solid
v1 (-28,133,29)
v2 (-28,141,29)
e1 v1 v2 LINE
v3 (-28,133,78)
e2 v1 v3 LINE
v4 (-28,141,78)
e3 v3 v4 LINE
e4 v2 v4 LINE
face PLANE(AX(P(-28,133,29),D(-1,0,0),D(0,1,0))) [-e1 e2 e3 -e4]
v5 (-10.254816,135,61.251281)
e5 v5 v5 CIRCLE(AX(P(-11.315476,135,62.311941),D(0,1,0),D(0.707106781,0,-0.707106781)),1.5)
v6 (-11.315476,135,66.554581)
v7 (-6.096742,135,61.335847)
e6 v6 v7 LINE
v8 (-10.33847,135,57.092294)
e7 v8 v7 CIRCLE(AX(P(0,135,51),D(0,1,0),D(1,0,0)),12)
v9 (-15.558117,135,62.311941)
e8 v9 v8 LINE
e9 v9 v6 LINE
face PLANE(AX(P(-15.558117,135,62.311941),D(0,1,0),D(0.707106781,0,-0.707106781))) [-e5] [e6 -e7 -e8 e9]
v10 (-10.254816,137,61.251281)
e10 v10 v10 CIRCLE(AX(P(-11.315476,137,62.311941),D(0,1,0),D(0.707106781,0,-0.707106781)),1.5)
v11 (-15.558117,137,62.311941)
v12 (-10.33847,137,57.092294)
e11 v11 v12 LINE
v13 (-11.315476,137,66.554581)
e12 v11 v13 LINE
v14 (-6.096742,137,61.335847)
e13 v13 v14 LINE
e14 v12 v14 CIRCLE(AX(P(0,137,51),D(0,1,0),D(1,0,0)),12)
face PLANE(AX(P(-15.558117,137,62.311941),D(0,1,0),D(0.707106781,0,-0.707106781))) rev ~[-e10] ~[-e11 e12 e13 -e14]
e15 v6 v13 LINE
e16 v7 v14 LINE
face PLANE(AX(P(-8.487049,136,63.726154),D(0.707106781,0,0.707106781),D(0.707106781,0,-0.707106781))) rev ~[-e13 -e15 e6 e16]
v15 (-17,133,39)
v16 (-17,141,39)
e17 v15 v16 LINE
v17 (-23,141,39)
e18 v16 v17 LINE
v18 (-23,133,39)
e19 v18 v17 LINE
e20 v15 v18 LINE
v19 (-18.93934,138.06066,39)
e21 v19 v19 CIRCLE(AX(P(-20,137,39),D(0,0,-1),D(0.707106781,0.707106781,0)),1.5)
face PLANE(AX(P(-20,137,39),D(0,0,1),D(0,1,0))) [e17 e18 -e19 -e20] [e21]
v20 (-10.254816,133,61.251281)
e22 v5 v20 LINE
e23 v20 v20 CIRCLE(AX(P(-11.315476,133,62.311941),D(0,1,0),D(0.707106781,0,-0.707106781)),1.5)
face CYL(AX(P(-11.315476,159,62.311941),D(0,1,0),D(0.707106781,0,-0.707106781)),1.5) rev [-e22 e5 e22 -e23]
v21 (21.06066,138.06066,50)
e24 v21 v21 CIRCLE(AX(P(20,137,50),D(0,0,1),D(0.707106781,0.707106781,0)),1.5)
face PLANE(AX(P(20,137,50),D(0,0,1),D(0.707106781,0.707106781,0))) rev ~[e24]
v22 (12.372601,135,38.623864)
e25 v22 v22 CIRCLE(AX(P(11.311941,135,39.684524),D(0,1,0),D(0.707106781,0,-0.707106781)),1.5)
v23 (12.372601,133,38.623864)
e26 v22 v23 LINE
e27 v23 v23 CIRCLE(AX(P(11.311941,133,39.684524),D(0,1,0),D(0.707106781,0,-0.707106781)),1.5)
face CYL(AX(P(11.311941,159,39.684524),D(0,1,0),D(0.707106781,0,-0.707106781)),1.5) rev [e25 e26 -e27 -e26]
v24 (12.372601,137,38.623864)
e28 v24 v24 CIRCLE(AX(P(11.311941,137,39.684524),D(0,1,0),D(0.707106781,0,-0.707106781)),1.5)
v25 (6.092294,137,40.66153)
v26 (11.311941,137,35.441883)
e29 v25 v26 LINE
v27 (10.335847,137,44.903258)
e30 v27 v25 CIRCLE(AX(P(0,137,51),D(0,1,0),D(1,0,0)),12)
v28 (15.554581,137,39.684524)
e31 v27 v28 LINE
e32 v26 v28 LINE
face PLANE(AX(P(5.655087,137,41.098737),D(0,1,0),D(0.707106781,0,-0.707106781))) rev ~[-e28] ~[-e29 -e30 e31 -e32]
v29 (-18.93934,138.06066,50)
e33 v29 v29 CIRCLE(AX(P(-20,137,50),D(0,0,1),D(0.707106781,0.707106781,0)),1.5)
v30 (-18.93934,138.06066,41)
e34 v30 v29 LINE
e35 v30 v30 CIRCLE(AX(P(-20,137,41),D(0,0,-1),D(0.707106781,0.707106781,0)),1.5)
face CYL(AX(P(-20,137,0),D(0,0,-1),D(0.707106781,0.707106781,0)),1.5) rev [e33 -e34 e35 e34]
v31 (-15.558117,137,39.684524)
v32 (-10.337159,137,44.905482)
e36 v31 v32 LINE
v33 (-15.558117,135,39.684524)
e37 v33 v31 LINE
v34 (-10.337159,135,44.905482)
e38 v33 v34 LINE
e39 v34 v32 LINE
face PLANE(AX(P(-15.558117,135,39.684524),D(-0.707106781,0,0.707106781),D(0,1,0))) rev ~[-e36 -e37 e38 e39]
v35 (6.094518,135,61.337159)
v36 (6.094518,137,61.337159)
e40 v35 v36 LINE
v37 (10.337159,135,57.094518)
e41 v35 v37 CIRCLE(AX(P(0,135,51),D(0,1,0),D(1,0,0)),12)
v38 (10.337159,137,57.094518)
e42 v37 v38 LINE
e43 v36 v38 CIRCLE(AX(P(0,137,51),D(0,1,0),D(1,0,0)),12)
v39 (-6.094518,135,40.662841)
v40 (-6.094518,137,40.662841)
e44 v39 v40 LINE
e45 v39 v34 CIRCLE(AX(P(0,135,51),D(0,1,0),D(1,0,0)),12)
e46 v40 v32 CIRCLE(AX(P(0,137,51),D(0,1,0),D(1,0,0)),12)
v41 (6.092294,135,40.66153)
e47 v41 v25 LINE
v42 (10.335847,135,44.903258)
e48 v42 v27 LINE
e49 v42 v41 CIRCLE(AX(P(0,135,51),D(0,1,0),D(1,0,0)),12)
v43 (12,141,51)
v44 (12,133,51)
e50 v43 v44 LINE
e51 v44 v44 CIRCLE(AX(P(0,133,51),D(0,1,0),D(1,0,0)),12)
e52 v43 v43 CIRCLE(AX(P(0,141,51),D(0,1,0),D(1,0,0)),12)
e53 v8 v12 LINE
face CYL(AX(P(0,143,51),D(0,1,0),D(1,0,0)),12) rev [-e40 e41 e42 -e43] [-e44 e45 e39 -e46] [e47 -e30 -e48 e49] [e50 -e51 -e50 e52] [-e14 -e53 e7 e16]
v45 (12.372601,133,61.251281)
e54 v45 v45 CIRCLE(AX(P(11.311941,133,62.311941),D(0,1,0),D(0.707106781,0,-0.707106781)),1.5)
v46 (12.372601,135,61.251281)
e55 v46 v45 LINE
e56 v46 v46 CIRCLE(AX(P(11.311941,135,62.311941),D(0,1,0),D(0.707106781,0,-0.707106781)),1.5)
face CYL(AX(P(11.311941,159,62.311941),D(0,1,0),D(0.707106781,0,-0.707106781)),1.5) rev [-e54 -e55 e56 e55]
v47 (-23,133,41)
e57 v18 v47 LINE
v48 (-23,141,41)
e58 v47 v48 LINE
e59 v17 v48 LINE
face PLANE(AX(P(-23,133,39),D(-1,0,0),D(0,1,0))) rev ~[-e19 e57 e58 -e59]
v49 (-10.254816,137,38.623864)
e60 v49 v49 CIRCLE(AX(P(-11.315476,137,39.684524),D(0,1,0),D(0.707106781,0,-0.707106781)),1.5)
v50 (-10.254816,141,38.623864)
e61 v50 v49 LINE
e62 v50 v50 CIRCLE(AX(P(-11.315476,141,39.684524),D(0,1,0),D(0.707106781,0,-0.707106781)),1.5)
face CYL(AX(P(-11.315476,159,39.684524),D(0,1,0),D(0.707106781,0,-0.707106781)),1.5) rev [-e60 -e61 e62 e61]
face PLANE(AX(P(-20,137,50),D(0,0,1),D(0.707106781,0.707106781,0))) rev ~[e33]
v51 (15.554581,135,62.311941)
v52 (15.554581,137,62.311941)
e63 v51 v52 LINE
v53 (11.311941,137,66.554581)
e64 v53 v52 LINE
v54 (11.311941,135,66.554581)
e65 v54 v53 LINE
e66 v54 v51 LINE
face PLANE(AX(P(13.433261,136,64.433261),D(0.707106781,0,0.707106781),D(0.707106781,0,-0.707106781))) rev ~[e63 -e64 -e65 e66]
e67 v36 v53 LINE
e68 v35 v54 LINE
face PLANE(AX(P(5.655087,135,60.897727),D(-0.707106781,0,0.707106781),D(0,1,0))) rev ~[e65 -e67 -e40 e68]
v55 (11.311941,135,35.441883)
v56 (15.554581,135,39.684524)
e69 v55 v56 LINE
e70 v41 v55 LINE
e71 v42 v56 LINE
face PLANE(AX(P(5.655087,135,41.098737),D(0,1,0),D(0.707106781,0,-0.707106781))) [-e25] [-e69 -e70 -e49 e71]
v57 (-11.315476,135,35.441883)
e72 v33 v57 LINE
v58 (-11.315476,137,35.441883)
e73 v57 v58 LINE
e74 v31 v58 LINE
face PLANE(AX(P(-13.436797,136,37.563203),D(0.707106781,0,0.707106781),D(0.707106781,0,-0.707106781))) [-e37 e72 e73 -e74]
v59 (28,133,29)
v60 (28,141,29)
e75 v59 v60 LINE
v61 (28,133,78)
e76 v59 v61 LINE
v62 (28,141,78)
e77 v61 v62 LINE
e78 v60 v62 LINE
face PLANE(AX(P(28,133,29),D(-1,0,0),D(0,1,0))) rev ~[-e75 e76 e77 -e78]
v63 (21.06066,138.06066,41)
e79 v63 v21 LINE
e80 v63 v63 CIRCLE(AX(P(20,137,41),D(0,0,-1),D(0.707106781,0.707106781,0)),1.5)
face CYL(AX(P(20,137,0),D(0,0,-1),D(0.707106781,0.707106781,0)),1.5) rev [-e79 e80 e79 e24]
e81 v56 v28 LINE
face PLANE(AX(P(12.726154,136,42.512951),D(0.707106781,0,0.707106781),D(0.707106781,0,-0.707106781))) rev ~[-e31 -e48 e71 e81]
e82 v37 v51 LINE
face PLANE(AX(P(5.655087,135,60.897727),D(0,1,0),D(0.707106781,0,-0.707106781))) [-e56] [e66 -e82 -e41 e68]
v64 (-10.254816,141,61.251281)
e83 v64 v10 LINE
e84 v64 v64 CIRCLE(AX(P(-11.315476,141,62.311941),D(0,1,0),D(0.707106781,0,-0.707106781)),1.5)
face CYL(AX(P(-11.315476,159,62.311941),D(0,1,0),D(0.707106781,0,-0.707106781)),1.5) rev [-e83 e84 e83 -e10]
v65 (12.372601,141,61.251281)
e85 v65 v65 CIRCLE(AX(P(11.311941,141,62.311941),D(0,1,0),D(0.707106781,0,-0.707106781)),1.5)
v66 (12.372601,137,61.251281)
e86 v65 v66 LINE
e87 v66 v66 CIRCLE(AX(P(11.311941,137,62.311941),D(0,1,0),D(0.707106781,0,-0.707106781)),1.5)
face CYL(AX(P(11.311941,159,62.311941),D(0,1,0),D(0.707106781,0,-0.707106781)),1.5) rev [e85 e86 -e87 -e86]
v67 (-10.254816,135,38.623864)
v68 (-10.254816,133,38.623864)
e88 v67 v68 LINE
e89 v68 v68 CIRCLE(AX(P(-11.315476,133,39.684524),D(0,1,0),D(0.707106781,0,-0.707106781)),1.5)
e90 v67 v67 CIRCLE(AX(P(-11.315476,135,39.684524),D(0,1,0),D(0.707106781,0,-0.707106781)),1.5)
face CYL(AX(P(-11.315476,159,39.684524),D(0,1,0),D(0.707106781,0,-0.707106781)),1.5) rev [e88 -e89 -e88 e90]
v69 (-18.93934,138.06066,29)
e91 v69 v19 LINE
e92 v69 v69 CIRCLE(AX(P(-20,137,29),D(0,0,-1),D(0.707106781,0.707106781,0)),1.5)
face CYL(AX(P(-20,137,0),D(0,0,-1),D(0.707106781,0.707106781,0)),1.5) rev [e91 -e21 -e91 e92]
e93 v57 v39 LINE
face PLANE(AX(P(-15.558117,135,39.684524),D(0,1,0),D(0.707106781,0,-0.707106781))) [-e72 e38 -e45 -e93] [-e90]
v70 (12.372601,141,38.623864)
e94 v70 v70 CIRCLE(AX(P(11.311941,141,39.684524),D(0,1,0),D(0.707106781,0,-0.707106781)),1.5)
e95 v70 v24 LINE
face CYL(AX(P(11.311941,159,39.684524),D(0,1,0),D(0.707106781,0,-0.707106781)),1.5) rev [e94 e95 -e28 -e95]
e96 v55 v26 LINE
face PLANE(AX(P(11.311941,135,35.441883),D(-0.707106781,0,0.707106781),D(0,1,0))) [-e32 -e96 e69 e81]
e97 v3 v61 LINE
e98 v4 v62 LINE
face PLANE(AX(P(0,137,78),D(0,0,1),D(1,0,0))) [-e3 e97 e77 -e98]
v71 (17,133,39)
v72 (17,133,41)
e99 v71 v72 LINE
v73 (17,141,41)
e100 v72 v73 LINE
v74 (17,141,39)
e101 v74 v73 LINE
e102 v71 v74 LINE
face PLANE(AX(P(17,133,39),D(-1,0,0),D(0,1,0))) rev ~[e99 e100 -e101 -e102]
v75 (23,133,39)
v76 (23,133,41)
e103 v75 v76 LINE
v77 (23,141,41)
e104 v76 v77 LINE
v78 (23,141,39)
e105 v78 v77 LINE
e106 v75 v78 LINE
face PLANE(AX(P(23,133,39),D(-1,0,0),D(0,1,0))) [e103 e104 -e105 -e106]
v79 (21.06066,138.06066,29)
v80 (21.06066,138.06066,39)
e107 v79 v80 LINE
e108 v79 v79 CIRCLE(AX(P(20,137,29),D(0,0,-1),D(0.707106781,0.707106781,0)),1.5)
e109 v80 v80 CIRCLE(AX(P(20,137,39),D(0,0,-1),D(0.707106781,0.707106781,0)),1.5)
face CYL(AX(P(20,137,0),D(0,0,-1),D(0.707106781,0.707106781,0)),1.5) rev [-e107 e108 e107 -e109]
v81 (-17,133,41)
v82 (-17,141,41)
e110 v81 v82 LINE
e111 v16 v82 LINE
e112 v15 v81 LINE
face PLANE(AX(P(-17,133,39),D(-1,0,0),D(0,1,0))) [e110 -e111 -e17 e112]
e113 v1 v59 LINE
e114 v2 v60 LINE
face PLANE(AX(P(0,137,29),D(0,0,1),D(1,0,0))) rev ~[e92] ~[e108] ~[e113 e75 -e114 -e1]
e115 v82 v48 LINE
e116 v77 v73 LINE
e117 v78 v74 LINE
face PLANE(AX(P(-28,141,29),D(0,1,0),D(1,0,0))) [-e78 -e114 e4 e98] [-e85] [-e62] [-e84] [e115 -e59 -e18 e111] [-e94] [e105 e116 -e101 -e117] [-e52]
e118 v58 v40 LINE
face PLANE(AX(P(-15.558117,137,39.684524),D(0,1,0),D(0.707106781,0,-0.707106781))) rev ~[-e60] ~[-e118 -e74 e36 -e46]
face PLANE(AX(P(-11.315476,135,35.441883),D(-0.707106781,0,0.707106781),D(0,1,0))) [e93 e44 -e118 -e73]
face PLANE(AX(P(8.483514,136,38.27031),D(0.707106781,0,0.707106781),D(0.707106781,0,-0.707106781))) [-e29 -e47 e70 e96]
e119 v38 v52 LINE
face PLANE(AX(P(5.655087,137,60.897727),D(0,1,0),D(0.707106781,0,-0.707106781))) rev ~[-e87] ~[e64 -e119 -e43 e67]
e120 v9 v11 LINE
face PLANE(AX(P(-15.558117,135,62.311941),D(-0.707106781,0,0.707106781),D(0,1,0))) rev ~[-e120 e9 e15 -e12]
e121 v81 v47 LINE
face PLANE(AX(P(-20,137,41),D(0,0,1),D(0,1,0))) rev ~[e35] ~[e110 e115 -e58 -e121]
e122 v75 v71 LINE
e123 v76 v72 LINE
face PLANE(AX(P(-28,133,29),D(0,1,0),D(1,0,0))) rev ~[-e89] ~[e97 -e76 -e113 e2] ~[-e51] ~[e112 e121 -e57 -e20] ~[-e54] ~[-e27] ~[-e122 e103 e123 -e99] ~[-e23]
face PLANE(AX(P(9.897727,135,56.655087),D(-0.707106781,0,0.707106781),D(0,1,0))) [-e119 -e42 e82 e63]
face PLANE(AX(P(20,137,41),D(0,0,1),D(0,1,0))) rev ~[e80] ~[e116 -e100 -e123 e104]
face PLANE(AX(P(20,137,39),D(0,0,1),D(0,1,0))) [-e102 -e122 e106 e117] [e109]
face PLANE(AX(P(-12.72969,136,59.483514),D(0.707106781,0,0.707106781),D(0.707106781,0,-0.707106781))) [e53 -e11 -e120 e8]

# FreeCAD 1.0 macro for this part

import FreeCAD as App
import Part
import Sketcher

doc = App.newDocument("Part")
body = doc.addObject("PartDesign::Body", "Body")

# Sketch on XY plane
sketch1 = doc.addObject("Sketcher::SketchObject", "Sketch")
body.addObject(sketch1)
sketch1.AttachmentSupport = (doc.XY_Plane, [""])
sketch1.MapMode = "FlatFace"
sketch1.AttachmentOffset = App.Placement(App.Vector(0, 0, 39), App.Rotation())
sketch1.addGeometry(Part.LineSegment(App.Vector(-23, 114, 0), App.Vector(-17, 114, 0)), False)
sketch1.addGeometry(Part.LineSegment(App.Vector(-17, 114, 0), App.Vector(-17, 122, 0)), False)
sketch1.addGeometry(Part.LineSegment(App.Vector(-17, 122, 0), App.Vector(-23, 122, 0)), False)
sketch1.addGeometry(Part.LineSegment(App.Vector(-23, 122, 0), App.Vector(-23, 114, 0)), False)
sketch1.addConstraint(Sketcher.Constraint("Coincident", 0, 2, 1, 1))
sketch1.addConstraint(Sketcher.Constraint("Coincident", 1, 2, 2, 1))
sketch1.addConstraint(Sketcher.Constraint("Coincident", 2, 2, 3, 1))
sketch1.addConstraint(Sketcher.Constraint("Coincident", 3, 2, 0, 1))
sketch1.addConstraint(Sketcher.Constraint("Horizontal", 0))
sketch1.addConstraint(Sketcher.Constraint("Vertical", 1))
sketch1.addConstraint(Sketcher.Constraint("Horizontal", 2))
sketch1.addConstraint(Sketcher.Constraint("Vertical", 3))
sketch1.addConstraint(Sketcher.Constraint("DistanceX", 0, 1, 0, 2, 6.0))
sketch1.addConstraint(Sketcher.Constraint("DistanceY", 1, 1, 1, 2, 8.0))
sketch1.addConstraint(Sketcher.Constraint("DistanceX", 0, 2, -1, 1, 17.0))
sketch1.addConstraint(Sketcher.Constraint("DistanceY", -1, 1, 0, 2, 114.0))
pad1 = doc.addObject("PartDesign::Pad", "Pad")
body.addObject(pad1)
pad1.Profile = sketch1
pad1.Length = 2
body2 = doc.addObject("PartDesign::Body", "Body001")
body2.AllowCompound = True

# Sketch on XY plane
sketch2 = doc.addObject("Sketcher::SketchObject", "Sketch001")
body2.addObject(sketch2)
sketch2.AttachmentSupport = (doc.getObject("XY_Plane001"), [""])
sketch2.MapMode = "FlatFace"
sketch2.AttachmentOffset = App.Placement(App.Vector(0, 0, 39), App.Rotation())
sketch2.addGeometry(Part.LineSegment(App.Vector(17, 114, 0), App.Vector(23, 114, 0)), False)
sketch2.addGeometry(Part.LineSegment(App.Vector(23, 114, 0), App.Vector(23, 122, 0)), False)
sketch2.addGeometry(Part.LineSegment(App.Vector(23, 122, 0), App.Vector(17, 122, 0)), False)
sketch2.addGeometry(Part.LineSegment(App.Vector(17, 122, 0), App.Vector(17, 114, 0)), False)
sketch2.addConstraint(Sketcher.Constraint("Coincident", 0, 2, 1, 1))
sketch2.addConstraint(Sketcher.Constraint("Coincident", 1, 2, 2, 1))
sketch2.addConstraint(Sketcher.Constraint("Coincident", 2, 2, 3, 1))
sketch2.addConstraint(Sketcher.Constraint("Coincident", 3, 2, 0, 1))
sketch2.addConstraint(Sketcher.Constraint("Horizontal", 0))
sketch2.addConstraint(Sketcher.Constraint("Vertical", 1))
sketch2.addConstraint(Sketcher.Constraint("Horizontal", 2))
sketch2.addConstraint(Sketcher.Constraint("Vertical", 3))
sketch2.addConstraint(Sketcher.Constraint("DistanceX", 0, 1, 0, 2, 6.0))
sketch2.addConstraint(Sketcher.Constraint("DistanceY", 1, 1, 1, 2, 8.0))
sketch2.addConstraint(Sketcher.Constraint("DistanceX", -1, 1, 0, 2, 23.0))
sketch2.addConstraint(Sketcher.Constraint("DistanceY", -1, 1, 0, 2, 114.0))
pad2 = doc.addObject("PartDesign::Pad", "Pad001")
body2.addObject(pad2)
pad2.Profile = sketch2
pad2.Length = 2
doc.recompute()

boolean = doc.addObject("PartDesign::Boolean", "Boolean")
body2.addObject(boolean)
boolean.Type = "Fuse"
boolean.addObjects([body])
body3 = doc.addObject("PartDesign::Body", "Body002")
body3.AllowCompound = True
doc.recompute()

body2.Placement = App.Placement(App.Vector(0, 18, 0), App.Rotation(App.Vector(0, 0, 1), 0))
boolean2 = doc.addObject("PartDesign::Boolean", "Boolean001")
body3.addObject(boolean2)
boolean2.Type = "Fuse"
boolean2.addObjects([body2])
body4 = doc.addObject("PartDesign::Body", "Body003")

# Sketch on XY plane
sketch3 = doc.addObject("Sketcher::SketchObject", "Sketch002")
body4.addObject(sketch3)
sketch3.AttachmentSupport = (doc.getObject("XY_Plane003"), [""])
sketch3.MapMode = "FlatFace"
sketch3.addGeometry(Part.Circle(App.Vector(0, 0, 0), App.Vector(0, 0, 1), 1.5), False)
sketch3.addConstraint(Sketcher.Constraint("Coincident", 0, 3, -1, 1))
sketch3.addConstraint(Sketcher.Constraint("Diameter", 0, 3.0))
pad3 = doc.addObject("PartDesign::Pad", "Pad002")
body4.addObject(pad3)
pad3.Profile = sketch3
pad3.Length = 50
body5 = doc.addObject("PartDesign::Body", "Body004")
doc.recompute()

body4.Placement = App.Placement(App.Vector(20, 118, 0), App.Rotation(App.Vector(0, 0, 1), 45))
boolean3 = doc.addObject("PartDesign::Boolean", "Boolean002")
body5.addObject(boolean3)
boolean3.Type = "Fuse"
boolean3.addObjects([body4])
body6 = doc.addObject("PartDesign::Body", "Body005")

# Sketch on XY plane
sketch4 = doc.addObject("Sketcher::SketchObject", "Sketch003")
body6.addObject(sketch4)
sketch4.AttachmentSupport = (doc.getObject("XY_Plane005"), [""])
sketch4.MapMode = "FlatFace"
sketch4.addGeometry(Part.Circle(App.Vector(0, 0, 0), App.Vector(0, 0, 1), 1.5), False)
sketch4.addConstraint(Sketcher.Constraint("Coincident", 0, 3, -1, 1))
sketch4.addConstraint(Sketcher.Constraint("Diameter", 0, 3.0))
pad4 = doc.addObject("PartDesign::Pad", "Pad003")
body6.addObject(pad4)
pad4.Profile = sketch4
pad4.Length = 50
body7 = doc.addObject("PartDesign::Body", "Body006")
body7.AllowCompound = True
doc.recompute()

body6.Placement = App.Placement(App.Vector(-20, 118, 0), App.Rotation(App.Vector(0, 0, 1), 45))
boolean4 = doc.addObject("PartDesign::Boolean", "Boolean003")
body7.addObject(boolean4)
boolean4.Type = "Fuse"
boolean4.addObjects([body6])
doc.recompute()

boolean5 = doc.addObject("PartDesign::Boolean", "Boolean004")
body7.addObject(boolean5)
boolean5.Type = "Fuse"
boolean5.addObjects([body5])
body8 = doc.addObject("PartDesign::Body", "Body007")
body8.AllowCompound = True
doc.recompute()

body7.Placement = App.Placement(App.Vector(0, 18, 0), App.Rotation(App.Vector(0, 0, 1), 0))
boolean6 = doc.addObject("PartDesign::Boolean", "Boolean005")
body8.addObject(boolean6)
boolean6.Type = "Fuse"
boolean6.addObjects([body7])
body9 = doc.addObject("PartDesign::Body", "Body008")

# Sketch on XY plane
sketch5 = doc.addObject("Sketcher::SketchObject", "Sketch004")
body9.addObject(sketch5)
sketch5.AttachmentSupport = (doc.getObject("XY_Plane008"), [""])
sketch5.MapMode = "FlatFace"
sketch5.AttachmentOffset = App.Placement(App.Vector(0, 0, 30), App.Rotation())
sketch5.addGeometry(Part.LineSegment(App.Vector(-3, 118, 0), App.Vector(-3, 116, 0)), False)
sketch5.addGeometry(Part.LineSegment(App.Vector(-3, 116, 0), App.Vector(3, 116, 0)), False)
sketch5.addGeometry(Part.LineSegment(App.Vector(3, 116, 0), App.Vector(3, 118, 0)), False)
sketch5.addGeometry(Part.LineSegment(App.Vector(3, 118, 0), App.Vector(-3, 118, 0)), False)
sketch5.addConstraint(Sketcher.Constraint("Coincident", 0, 2, 1, 1))
sketch5.addConstraint(Sketcher.Constraint("Coincident", 1, 2, 2, 1))
sketch5.addConstraint(Sketcher.Constraint("Coincident", 2, 2, 3, 1))
sketch5.addConstraint(Sketcher.Constraint("Coincident", 3, 2, 0, 1))
sketch5.addConstraint(Sketcher.Constraint("Vertical", 0))
sketch5.addConstraint(Sketcher.Constraint("Horizontal", 1))
sketch5.addConstraint(Sketcher.Constraint("Vertical", 2))
sketch5.addConstraint(Sketcher.Constraint("Horizontal", 3))
sketch5.addConstraint(Sketcher.Constraint("DistanceX", 1, 1, 1, 2, 6.0))
sketch5.addConstraint(Sketcher.Constraint("DistanceY", 0, 2, 0, 1, 2.0))
sketch5.addConstraint(Sketcher.Constraint("DistanceX", 0, 2, -1, 1, 3.0))
sketch5.addConstraint(Sketcher.Constraint("DistanceY", -1, 1, 0, 2, 116.0))
pad5 = doc.addObject("PartDesign::Pad", "Pad004")
body9.addObject(pad5)
pad5.Profile = sketch5
pad5.Length = 8
body10 = doc.addObject("PartDesign::Body", "Body009")

# Sketch on XY plane
sketch6 = doc.addObject("Sketcher::SketchObject", "Sketch005")
body10.addObject(sketch6)
sketch6.AttachmentSupport = (doc.getObject("XY_Plane009"), [""])
sketch6.MapMode = "FlatFace"
sketch6.AttachmentOffset = App.Placement(App.Vector(0, 0, 46), App.Rotation())
sketch6.addGeometry(Part.LineSegment(App.Vector(-19, 118, 0), App.Vector(-19, 116, 0)), False)
sketch6.addGeometry(Part.LineSegment(App.Vector(-19, 116, 0), App.Vector(-11, 116, 0)), False)
sketch6.addGeometry(Part.LineSegment(App.Vector(-11, 116, 0), App.Vector(-11, 118, 0)), False)
sketch6.addGeometry(Part.LineSegment(App.Vector(-11, 118, 0), App.Vector(-19, 118, 0)), False)
sketch6.addConstraint(Sketcher.Constraint("Coincident", 0, 2, 1, 1))
sketch6.addConstraint(Sketcher.Constraint("Coincident", 1, 2, 2, 1))
sketch6.addConstraint(Sketcher.Constraint("Coincident", 2, 2, 3, 1))
sketch6.addConstraint(Sketcher.Constraint("Coincident", 3, 2, 0, 1))
sketch6.addConstraint(Sketcher.Constraint("Vertical", 0))
sketch6.addConstraint(Sketcher.Constraint("Horizontal", 1))
sketch6.addConstraint(Sketcher.Constraint("Vertical", 2))
sketch6.addConstraint(Sketcher.Constraint("Horizontal", 3))
sketch6.addConstraint(Sketcher.Constraint("DistanceX", 1, 1, 1, 2, 8.0))
sketch6.addConstraint(Sketcher.Constraint("DistanceY", 0, 2, 0, 1, 2.0))
sketch6.addConstraint(Sketcher.Constraint("DistanceX", 0, 2, -1, 1, 19.0))
sketch6.addConstraint(Sketcher.Constraint("DistanceY", -1, 1, 0, 2, 116.0))
pad6 = doc.addObject("PartDesign::Pad", "Pad005")
body10.addObject(pad6)
pad6.Profile = sketch6
pad6.Length = 6
body11 = doc.addObject("PartDesign::Body", "Body010")

# Sketch on XY plane
sketch7 = doc.addObject("Sketcher::SketchObject", "Sketch006")
body11.addObject(sketch7)
sketch7.AttachmentSupport = (doc.getObject("XY_Plane010"), [""])
sketch7.MapMode = "FlatFace"
sketch7.AttachmentOffset = App.Placement(App.Vector(0, 0, 46), App.Rotation())
sketch7.addGeometry(Part.LineSegment(App.Vector(11, 118, 0), App.Vector(11, 116, 0)), False)
sketch7.addGeometry(Part.LineSegment(App.Vector(11, 116, 0), App.Vector(19, 116, 0)), False)
sketch7.addGeometry(Part.LineSegment(App.Vector(19, 116, 0), App.Vector(19, 118, 0)), False)
sketch7.addGeometry(Part.LineSegment(App.Vector(19, 118, 0), App.Vector(11, 118, 0)), False)
sketch7.addConstraint(Sketcher.Constraint("Coincident", 0, 2, 1, 1))
sketch7.addConstraint(Sketcher.Constraint("Coincident", 1, 2, 2, 1))
sketch7.addConstraint(Sketcher.Constraint("Coincident", 2, 2, 3, 1))
sketch7.addConstraint(Sketcher.Constraint("Coincident", 3, 2, 0, 1))
sketch7.addConstraint(Sketcher.Constraint("Vertical", 0))
sketch7.addConstraint(Sketcher.Constraint("Horizontal", 1))
sketch7.addConstraint(Sketcher.Constraint("Vertical", 2))
sketch7.addConstraint(Sketcher.Constraint("Horizontal", 3))
sketch7.addConstraint(Sketcher.Constraint("DistanceX", 1, 1, 1, 2, 8.0))
sketch7.addConstraint(Sketcher.Constraint("DistanceY", 0, 2, 0, 1, 2.0))
sketch7.addConstraint(Sketcher.Constraint("DistanceX", -1, 1, 0, 2, 11.0))
sketch7.addConstraint(Sketcher.Constraint("DistanceY", -1, 1, 0, 2, 116.0))
pad7 = doc.addObject("PartDesign::Pad", "Pad006")
body11.addObject(pad7)
pad7.Profile = sketch7
pad7.Length = 6
body12 = doc.addObject("PartDesign::Body", "Body011")
body12.AllowCompound = True

# Sketch on XY plane
sketch8 = doc.addObject("Sketcher::SketchObject", "Sketch007")
body12.addObject(sketch8)
sketch8.AttachmentSupport = (doc.getObject("XY_Plane011"), [""])
sketch8.MapMode = "FlatFace"
sketch8.AttachmentOffset = App.Placement(App.Vector(0, 0, 60), App.Rotation())
sketch8.addGeometry(Part.LineSegment(App.Vector(-3, 118, 0), App.Vector(-3, 116, 0)), False)
sketch8.addGeometry(Part.LineSegment(App.Vector(-3, 116, 0), App.Vector(3, 116, 0)), False)
sketch8.addGeometry(Part.LineSegment(App.Vector(3, 116, 0), App.Vector(3, 118, 0)), False)
sketch8.addGeometry(Part.LineSegment(App.Vector(3, 118, 0), App.Vector(-3, 118, 0)), False)
sketch8.addConstraint(Sketcher.Constraint("Coincident", 0, 2, 1, 1))
sketch8.addConstraint(Sketcher.Constraint("Coincident", 1, 2, 2, 1))
sketch8.addConstraint(Sketcher.Constraint("Coincident", 2, 2, 3, 1))
sketch8.addConstraint(Sketcher.Constraint("Coincident", 3, 2, 0, 1))
sketch8.addConstraint(Sketcher.Constraint("Vertical", 0))
sketch8.addConstraint(Sketcher.Constraint("Horizontal", 1))
sketch8.addConstraint(Sketcher.Constraint("Vertical", 2))
sketch8.addConstraint(Sketcher.Constraint("Horizontal", 3))
sketch8.addConstraint(Sketcher.Constraint("DistanceX", 1, 1, 1, 2, 6.0))
sketch8.addConstraint(Sketcher.Constraint("DistanceY", 0, 2, 0, 1, 2.0))
sketch8.addConstraint(Sketcher.Constraint("DistanceX", 0, 2, -1, 1, 3.0))
sketch8.addConstraint(Sketcher.Constraint("DistanceY", -1, 1, 0, 2, 116.0))
pad8 = doc.addObject("PartDesign::Pad", "Pad007")
body12.addObject(pad8)
pad8.Profile = sketch8
pad8.Length = 8
doc.recompute()

boolean7 = doc.addObject("PartDesign::Boolean", "Boolean006")
body12.addObject(boolean7)
boolean7.Type = "Fuse"
boolean7.addObjects([body9])
doc.recompute()

boolean8 = doc.addObject("PartDesign::Boolean", "Boolean007")
body12.addObject(boolean8)
boolean8.Type = "Fuse"
boolean8.addObjects([body10])
doc.recompute()

boolean9 = doc.addObject("PartDesign::Boolean", "Boolean008")
body12.addObject(boolean9)
boolean9.Type = "Fuse"
boolean9.addObjects([body11])
body13 = doc.addObject("PartDesign::Body", "Body012")
body13.AllowCompound = True
doc.recompute()

body12.Placement = App.Placement(App.Vector(-34.65, 0, 16.35), App.Rotation(App.Vector(0, 1, 0), 45))
boolean10 = doc.addObject("PartDesign::Boolean", "Boolean009")
body13.addObject(boolean10)
boolean10.Type = "Fuse"
boolean10.addObjects([body12])
body14 = doc.addObject("PartDesign::Body", "Body013")

# Sketch on XZ plane
sketch9 = doc.addObject("Sketcher::SketchObject", "Sketch008")
body14.addObject(sketch9)
sketch9.AttachmentSupport = (doc.getObject("XZ_Plane013"), [""])
sketch9.MapMode = "FlatFace"
sketch9.AttachmentOffset = App.Placement(App.Vector(0, 0, -124), App.Rotation())
sketch9.addGeometry(Part.Circle(App.Vector(0, 51, 0), App.Vector(0, 0, 1), 12), False)
sketch9.addConstraint(Sketcher.Constraint("PointOnObject", 0, 3, -2))
sketch9.addConstraint(Sketcher.Constraint("Diameter", 0, 24.0))
sketch9.addConstraint(Sketcher.Constraint("DistanceY", -1, 1, 0, 3, 51.0))
pad9 = doc.addObject("PartDesign::Pad", "Pad008")
body14.addObject(pad9)
pad9.Profile = sketch9
pad9.Length = 20
body15 = doc.addObject("PartDesign::Body", "Body014")

# Sketch on XZ plane
sketch10 = doc.addObject("Sketcher::SketchObject", "Sketch009")
body15.addObject(sketch10)
sketch10.AttachmentSupport = (doc.getObject("XZ_Plane014"), [""])
sketch10.MapMode = "FlatFace"
sketch10.AttachmentOffset = App.Placement(App.Vector(0, 0, -140), App.Rotation())
sketch10.addGeometry(Part.Circle(App.Vector(16, 49, 0), App.Vector(0, 0, 1), 1.5), False)
sketch10.addConstraint(Sketcher.Constraint("Diameter", 0, 3.0))
sketch10.addConstraint(Sketcher.Constraint("DistanceX", -1, 1, 0, 3, 16.0))
sketch10.addConstraint(Sketcher.Constraint("DistanceY", -1, 1, 0, 3, 49.0))
pad10 = doc.addObject("PartDesign::Pad", "Pad009")
body15.addObject(pad10)
pad10.Profile = sketch10
pad10.Length = 40
body16 = doc.addObject("PartDesign::Body", "Body015")

# Sketch on XZ plane
sketch11 = doc.addObject("Sketcher::SketchObject", "Sketch010")
body16.addObject(sketch11)
sketch11.AttachmentSupport = (doc.getObject("XZ_Plane015"), [""])
sketch11.MapMode = "FlatFace"
sketch11.AttachmentOffset = App.Placement(App.Vector(0, 0, -140), App.Rotation())
sketch11.addGeometry(Part.Circle(App.Vector(-16, 49, 0), App.Vector(0, 0, 1), 1.5), False)
sketch11.addConstraint(Sketcher.Constraint("Diameter", 0, 3.0))
sketch11.addConstraint(Sketcher.Constraint("DistanceX", 0, 3, -1, 1, 16.0))
sketch11.addConstraint(Sketcher.Constraint("DistanceY", -1, 1, 0, 3, 49.0))
pad11 = doc.addObject("PartDesign::Pad", "Pad010")
body16.addObject(pad11)
pad11.Profile = sketch11
pad11.Length = 40
body17 = doc.addObject("PartDesign::Body", "Body016")

# Sketch on XZ plane
sketch12 = doc.addObject("Sketcher::SketchObject", "Sketch011")
body17.addObject(sketch12)
sketch12.AttachmentSupport = (doc.getObject("XZ_Plane016"), [""])
sketch12.MapMode = "FlatFace"
sketch12.AttachmentOffset = App.Placement(App.Vector(0, 0, -140), App.Rotation())
sketch12.addGeometry(Part.Circle(App.Vector(0, 33, 0), App.Vector(0, 0, 1), 1.5), False)
sketch12.addConstraint(Sketcher.Constraint("PointOnObject", 0, 3, -2))
sketch12.addConstraint(Sketcher.Constraint("Diameter", 0, 3.0))
sketch12.addConstraint(Sketcher.Constraint("DistanceY", -1, 1, 0, 3, 33.0))
pad12 = doc.addObject("PartDesign::Pad", "Pad011")
body17.addObject(pad12)
pad12.Profile = sketch12
pad12.Length = 40
body18 = doc.addObject("PartDesign::Body", "Body017")
body18.AllowCompound = True

# Sketch on XZ plane
sketch13 = doc.addObject("Sketcher::SketchObject", "Sketch012")
body18.addObject(sketch13)
sketch13.AttachmentSupport = (doc.getObject("XZ_Plane017"), [""])
sketch13.MapMode = "FlatFace"
sketch13.AttachmentOffset = App.Placement(App.Vector(0, 0, -140), App.Rotation())
sketch13.addGeometry(Part.Circle(App.Vector(0, 65, 0), App.Vector(0, 0, 1), 1.5), False)
sketch13.addConstraint(Sketcher.Constraint("PointOnObject", 0, 3, -2))
sketch13.addConstraint(Sketcher.Constraint("Diameter", 0, 3.0))
sketch13.addConstraint(Sketcher.Constraint("DistanceY", -1, 1, 0, 3, 65.0))
pad13 = doc.addObject("PartDesign::Pad", "Pad012")
body18.addObject(pad13)
pad13.Profile = sketch13
pad13.Length = 40
doc.recompute()

boolean11 = doc.addObject("PartDesign::Boolean", "Boolean010")
body18.addObject(boolean11)
boolean11.Type = "Fuse"
boolean11.addObjects([body15])
doc.recompute()

boolean12 = doc.addObject("PartDesign::Boolean", "Boolean011")
body18.addObject(boolean12)
boolean12.Type = "Fuse"
boolean12.addObjects([body16])
doc.recompute()

boolean13 = doc.addObject("PartDesign::Boolean", "Boolean012")
body18.addObject(boolean13)
boolean13.Type = "Fuse"
boolean13.addObjects([body17])
body19 = doc.addObject("PartDesign::Body", "Body018")
body19.AllowCompound = True
doc.recompute()

body18.Placement = App.Placement(App.Vector(-34.65, 0, 16.35), App.Rotation(App.Vector(0, 1, 0), 45))
boolean14 = doc.addObject("PartDesign::Boolean", "Boolean013")
body19.addObject(boolean14)
boolean14.Type = "Fuse"
boolean14.addObjects([body18])
body20 = doc.addObject("PartDesign::Body", "Body019")

# Sketch on XY plane
sketch14 = doc.addObject("Sketcher::SketchObject", "Sketch013")
body20.addObject(sketch14)
sketch14.AttachmentSupport = (doc.getObject("XY_Plane019"), [""])
sketch14.MapMode = "FlatFace"
sketch14.AttachmentOffset = App.Placement(App.Vector(0, 0, 29), App.Rotation())
sketch14.addGeometry(Part.LineSegment(App.Vector(-28, 122, 0), App.Vector(-28, 114, 0)), False)
sketch14.addGeometry(Part.LineSegment(App.Vector(-28, 114, 0), App.Vector(28, 114, 0)), False)
sketch14.addGeometry(Part.LineSegment(App.Vector(28, 114, 0), App.Vector(28, 122, 0)), False)
sketch14.addGeometry(Part.LineSegment(App.Vector(28, 122, 0), App.Vector(-28, 122, 0)), False)
sketch14.addConstraint(Sketcher.Constraint("Coincident", 0, 2, 1, 1))
sketch14.addConstraint(Sketcher.Constraint("Coincident", 1, 2, 2, 1))
sketch14.addConstraint(Sketcher.Constraint("Coincident", 2, 2, 3, 1))
sketch14.addConstraint(Sketcher.Constraint("Coincident", 3, 2, 0, 1))
sketch14.addConstraint(Sketcher.Constraint("Vertical", 0))
sketch14.addConstraint(Sketcher.Constraint("Horizontal", 1))
sketch14.addConstraint(Sketcher.Constraint("Vertical", 2))
sketch14.addConstraint(Sketcher.Constraint("Horizontal", 3))
sketch14.addConstraint(Sketcher.Constraint("DistanceX", 1, 1, 1, 2, 56.0))
sketch14.addConstraint(Sketcher.Constraint("DistanceY", 0, 2, 0, 1, 8.0))
sketch14.addConstraint(Sketcher.Constraint("DistanceX", 0, 2, -1, 1, 28.0))
sketch14.addConstraint(Sketcher.Constraint("DistanceY", -1, 1, 0, 2, 114.0))
pad14 = doc.addObject("PartDesign::Pad", "Pad013")
body20.addObject(pad14)
pad14.Profile = sketch14
pad14.Length = 49
doc.recompute()

boolean15 = doc.addObject("PartDesign::Boolean", "Boolean014")
body20.addObject(boolean15)
boolean15.Type = "Cut"
boolean15.addObjects([body19])
doc.recompute()

boolean16 = doc.addObject("PartDesign::Boolean", "Boolean015")
body20.addObject(boolean16)
boolean16.Type = "Cut"
boolean16.addObjects([body14])
doc.recompute()

boolean17 = doc.addObject("PartDesign::Boolean", "Boolean016")
body20.addObject(boolean17)
boolean17.Type = "Cut"
boolean17.addObjects([body13])
body21 = doc.addObject("PartDesign::Body", "Body020")
doc.recompute()

body20.Placement = App.Placement(App.Vector(0, 18, 0), App.Rotation(App.Vector(0, 0, 1), 0))
boolean18 = doc.addObject("PartDesign::Boolean", "Boolean017")
body21.addObject(boolean18)
boolean18.Type = "Fuse"
boolean18.addObjects([body20])
doc.recompute()

boolean19 = doc.addObject("PartDesign::Boolean", "Boolean018")
body21.addObject(boolean19)
boolean19.Type = "Cut"
boolean19.addObjects([body8])
doc.recompute()

boolean20 = doc.addObject("PartDesign::Boolean", "Boolean019")
body21.addObject(boolean20)
boolean20.Type = "Cut"
boolean20.addObjects([body3])
body22 = doc.addObject("PartDesign::Body", "Body021")
doc.recompute()

body21.Placement = App.Placement(App.Vector(0, 1, 0), App.Rotation(App.Vector(0, 0, 1), 0))
boolean21 = doc.addObject("PartDesign::Boolean", "Boolean020")
body22.addObject(boolean21)
boolean21.Type = "Fuse"
boolean21.addObjects([body21])

doc.recompute()
